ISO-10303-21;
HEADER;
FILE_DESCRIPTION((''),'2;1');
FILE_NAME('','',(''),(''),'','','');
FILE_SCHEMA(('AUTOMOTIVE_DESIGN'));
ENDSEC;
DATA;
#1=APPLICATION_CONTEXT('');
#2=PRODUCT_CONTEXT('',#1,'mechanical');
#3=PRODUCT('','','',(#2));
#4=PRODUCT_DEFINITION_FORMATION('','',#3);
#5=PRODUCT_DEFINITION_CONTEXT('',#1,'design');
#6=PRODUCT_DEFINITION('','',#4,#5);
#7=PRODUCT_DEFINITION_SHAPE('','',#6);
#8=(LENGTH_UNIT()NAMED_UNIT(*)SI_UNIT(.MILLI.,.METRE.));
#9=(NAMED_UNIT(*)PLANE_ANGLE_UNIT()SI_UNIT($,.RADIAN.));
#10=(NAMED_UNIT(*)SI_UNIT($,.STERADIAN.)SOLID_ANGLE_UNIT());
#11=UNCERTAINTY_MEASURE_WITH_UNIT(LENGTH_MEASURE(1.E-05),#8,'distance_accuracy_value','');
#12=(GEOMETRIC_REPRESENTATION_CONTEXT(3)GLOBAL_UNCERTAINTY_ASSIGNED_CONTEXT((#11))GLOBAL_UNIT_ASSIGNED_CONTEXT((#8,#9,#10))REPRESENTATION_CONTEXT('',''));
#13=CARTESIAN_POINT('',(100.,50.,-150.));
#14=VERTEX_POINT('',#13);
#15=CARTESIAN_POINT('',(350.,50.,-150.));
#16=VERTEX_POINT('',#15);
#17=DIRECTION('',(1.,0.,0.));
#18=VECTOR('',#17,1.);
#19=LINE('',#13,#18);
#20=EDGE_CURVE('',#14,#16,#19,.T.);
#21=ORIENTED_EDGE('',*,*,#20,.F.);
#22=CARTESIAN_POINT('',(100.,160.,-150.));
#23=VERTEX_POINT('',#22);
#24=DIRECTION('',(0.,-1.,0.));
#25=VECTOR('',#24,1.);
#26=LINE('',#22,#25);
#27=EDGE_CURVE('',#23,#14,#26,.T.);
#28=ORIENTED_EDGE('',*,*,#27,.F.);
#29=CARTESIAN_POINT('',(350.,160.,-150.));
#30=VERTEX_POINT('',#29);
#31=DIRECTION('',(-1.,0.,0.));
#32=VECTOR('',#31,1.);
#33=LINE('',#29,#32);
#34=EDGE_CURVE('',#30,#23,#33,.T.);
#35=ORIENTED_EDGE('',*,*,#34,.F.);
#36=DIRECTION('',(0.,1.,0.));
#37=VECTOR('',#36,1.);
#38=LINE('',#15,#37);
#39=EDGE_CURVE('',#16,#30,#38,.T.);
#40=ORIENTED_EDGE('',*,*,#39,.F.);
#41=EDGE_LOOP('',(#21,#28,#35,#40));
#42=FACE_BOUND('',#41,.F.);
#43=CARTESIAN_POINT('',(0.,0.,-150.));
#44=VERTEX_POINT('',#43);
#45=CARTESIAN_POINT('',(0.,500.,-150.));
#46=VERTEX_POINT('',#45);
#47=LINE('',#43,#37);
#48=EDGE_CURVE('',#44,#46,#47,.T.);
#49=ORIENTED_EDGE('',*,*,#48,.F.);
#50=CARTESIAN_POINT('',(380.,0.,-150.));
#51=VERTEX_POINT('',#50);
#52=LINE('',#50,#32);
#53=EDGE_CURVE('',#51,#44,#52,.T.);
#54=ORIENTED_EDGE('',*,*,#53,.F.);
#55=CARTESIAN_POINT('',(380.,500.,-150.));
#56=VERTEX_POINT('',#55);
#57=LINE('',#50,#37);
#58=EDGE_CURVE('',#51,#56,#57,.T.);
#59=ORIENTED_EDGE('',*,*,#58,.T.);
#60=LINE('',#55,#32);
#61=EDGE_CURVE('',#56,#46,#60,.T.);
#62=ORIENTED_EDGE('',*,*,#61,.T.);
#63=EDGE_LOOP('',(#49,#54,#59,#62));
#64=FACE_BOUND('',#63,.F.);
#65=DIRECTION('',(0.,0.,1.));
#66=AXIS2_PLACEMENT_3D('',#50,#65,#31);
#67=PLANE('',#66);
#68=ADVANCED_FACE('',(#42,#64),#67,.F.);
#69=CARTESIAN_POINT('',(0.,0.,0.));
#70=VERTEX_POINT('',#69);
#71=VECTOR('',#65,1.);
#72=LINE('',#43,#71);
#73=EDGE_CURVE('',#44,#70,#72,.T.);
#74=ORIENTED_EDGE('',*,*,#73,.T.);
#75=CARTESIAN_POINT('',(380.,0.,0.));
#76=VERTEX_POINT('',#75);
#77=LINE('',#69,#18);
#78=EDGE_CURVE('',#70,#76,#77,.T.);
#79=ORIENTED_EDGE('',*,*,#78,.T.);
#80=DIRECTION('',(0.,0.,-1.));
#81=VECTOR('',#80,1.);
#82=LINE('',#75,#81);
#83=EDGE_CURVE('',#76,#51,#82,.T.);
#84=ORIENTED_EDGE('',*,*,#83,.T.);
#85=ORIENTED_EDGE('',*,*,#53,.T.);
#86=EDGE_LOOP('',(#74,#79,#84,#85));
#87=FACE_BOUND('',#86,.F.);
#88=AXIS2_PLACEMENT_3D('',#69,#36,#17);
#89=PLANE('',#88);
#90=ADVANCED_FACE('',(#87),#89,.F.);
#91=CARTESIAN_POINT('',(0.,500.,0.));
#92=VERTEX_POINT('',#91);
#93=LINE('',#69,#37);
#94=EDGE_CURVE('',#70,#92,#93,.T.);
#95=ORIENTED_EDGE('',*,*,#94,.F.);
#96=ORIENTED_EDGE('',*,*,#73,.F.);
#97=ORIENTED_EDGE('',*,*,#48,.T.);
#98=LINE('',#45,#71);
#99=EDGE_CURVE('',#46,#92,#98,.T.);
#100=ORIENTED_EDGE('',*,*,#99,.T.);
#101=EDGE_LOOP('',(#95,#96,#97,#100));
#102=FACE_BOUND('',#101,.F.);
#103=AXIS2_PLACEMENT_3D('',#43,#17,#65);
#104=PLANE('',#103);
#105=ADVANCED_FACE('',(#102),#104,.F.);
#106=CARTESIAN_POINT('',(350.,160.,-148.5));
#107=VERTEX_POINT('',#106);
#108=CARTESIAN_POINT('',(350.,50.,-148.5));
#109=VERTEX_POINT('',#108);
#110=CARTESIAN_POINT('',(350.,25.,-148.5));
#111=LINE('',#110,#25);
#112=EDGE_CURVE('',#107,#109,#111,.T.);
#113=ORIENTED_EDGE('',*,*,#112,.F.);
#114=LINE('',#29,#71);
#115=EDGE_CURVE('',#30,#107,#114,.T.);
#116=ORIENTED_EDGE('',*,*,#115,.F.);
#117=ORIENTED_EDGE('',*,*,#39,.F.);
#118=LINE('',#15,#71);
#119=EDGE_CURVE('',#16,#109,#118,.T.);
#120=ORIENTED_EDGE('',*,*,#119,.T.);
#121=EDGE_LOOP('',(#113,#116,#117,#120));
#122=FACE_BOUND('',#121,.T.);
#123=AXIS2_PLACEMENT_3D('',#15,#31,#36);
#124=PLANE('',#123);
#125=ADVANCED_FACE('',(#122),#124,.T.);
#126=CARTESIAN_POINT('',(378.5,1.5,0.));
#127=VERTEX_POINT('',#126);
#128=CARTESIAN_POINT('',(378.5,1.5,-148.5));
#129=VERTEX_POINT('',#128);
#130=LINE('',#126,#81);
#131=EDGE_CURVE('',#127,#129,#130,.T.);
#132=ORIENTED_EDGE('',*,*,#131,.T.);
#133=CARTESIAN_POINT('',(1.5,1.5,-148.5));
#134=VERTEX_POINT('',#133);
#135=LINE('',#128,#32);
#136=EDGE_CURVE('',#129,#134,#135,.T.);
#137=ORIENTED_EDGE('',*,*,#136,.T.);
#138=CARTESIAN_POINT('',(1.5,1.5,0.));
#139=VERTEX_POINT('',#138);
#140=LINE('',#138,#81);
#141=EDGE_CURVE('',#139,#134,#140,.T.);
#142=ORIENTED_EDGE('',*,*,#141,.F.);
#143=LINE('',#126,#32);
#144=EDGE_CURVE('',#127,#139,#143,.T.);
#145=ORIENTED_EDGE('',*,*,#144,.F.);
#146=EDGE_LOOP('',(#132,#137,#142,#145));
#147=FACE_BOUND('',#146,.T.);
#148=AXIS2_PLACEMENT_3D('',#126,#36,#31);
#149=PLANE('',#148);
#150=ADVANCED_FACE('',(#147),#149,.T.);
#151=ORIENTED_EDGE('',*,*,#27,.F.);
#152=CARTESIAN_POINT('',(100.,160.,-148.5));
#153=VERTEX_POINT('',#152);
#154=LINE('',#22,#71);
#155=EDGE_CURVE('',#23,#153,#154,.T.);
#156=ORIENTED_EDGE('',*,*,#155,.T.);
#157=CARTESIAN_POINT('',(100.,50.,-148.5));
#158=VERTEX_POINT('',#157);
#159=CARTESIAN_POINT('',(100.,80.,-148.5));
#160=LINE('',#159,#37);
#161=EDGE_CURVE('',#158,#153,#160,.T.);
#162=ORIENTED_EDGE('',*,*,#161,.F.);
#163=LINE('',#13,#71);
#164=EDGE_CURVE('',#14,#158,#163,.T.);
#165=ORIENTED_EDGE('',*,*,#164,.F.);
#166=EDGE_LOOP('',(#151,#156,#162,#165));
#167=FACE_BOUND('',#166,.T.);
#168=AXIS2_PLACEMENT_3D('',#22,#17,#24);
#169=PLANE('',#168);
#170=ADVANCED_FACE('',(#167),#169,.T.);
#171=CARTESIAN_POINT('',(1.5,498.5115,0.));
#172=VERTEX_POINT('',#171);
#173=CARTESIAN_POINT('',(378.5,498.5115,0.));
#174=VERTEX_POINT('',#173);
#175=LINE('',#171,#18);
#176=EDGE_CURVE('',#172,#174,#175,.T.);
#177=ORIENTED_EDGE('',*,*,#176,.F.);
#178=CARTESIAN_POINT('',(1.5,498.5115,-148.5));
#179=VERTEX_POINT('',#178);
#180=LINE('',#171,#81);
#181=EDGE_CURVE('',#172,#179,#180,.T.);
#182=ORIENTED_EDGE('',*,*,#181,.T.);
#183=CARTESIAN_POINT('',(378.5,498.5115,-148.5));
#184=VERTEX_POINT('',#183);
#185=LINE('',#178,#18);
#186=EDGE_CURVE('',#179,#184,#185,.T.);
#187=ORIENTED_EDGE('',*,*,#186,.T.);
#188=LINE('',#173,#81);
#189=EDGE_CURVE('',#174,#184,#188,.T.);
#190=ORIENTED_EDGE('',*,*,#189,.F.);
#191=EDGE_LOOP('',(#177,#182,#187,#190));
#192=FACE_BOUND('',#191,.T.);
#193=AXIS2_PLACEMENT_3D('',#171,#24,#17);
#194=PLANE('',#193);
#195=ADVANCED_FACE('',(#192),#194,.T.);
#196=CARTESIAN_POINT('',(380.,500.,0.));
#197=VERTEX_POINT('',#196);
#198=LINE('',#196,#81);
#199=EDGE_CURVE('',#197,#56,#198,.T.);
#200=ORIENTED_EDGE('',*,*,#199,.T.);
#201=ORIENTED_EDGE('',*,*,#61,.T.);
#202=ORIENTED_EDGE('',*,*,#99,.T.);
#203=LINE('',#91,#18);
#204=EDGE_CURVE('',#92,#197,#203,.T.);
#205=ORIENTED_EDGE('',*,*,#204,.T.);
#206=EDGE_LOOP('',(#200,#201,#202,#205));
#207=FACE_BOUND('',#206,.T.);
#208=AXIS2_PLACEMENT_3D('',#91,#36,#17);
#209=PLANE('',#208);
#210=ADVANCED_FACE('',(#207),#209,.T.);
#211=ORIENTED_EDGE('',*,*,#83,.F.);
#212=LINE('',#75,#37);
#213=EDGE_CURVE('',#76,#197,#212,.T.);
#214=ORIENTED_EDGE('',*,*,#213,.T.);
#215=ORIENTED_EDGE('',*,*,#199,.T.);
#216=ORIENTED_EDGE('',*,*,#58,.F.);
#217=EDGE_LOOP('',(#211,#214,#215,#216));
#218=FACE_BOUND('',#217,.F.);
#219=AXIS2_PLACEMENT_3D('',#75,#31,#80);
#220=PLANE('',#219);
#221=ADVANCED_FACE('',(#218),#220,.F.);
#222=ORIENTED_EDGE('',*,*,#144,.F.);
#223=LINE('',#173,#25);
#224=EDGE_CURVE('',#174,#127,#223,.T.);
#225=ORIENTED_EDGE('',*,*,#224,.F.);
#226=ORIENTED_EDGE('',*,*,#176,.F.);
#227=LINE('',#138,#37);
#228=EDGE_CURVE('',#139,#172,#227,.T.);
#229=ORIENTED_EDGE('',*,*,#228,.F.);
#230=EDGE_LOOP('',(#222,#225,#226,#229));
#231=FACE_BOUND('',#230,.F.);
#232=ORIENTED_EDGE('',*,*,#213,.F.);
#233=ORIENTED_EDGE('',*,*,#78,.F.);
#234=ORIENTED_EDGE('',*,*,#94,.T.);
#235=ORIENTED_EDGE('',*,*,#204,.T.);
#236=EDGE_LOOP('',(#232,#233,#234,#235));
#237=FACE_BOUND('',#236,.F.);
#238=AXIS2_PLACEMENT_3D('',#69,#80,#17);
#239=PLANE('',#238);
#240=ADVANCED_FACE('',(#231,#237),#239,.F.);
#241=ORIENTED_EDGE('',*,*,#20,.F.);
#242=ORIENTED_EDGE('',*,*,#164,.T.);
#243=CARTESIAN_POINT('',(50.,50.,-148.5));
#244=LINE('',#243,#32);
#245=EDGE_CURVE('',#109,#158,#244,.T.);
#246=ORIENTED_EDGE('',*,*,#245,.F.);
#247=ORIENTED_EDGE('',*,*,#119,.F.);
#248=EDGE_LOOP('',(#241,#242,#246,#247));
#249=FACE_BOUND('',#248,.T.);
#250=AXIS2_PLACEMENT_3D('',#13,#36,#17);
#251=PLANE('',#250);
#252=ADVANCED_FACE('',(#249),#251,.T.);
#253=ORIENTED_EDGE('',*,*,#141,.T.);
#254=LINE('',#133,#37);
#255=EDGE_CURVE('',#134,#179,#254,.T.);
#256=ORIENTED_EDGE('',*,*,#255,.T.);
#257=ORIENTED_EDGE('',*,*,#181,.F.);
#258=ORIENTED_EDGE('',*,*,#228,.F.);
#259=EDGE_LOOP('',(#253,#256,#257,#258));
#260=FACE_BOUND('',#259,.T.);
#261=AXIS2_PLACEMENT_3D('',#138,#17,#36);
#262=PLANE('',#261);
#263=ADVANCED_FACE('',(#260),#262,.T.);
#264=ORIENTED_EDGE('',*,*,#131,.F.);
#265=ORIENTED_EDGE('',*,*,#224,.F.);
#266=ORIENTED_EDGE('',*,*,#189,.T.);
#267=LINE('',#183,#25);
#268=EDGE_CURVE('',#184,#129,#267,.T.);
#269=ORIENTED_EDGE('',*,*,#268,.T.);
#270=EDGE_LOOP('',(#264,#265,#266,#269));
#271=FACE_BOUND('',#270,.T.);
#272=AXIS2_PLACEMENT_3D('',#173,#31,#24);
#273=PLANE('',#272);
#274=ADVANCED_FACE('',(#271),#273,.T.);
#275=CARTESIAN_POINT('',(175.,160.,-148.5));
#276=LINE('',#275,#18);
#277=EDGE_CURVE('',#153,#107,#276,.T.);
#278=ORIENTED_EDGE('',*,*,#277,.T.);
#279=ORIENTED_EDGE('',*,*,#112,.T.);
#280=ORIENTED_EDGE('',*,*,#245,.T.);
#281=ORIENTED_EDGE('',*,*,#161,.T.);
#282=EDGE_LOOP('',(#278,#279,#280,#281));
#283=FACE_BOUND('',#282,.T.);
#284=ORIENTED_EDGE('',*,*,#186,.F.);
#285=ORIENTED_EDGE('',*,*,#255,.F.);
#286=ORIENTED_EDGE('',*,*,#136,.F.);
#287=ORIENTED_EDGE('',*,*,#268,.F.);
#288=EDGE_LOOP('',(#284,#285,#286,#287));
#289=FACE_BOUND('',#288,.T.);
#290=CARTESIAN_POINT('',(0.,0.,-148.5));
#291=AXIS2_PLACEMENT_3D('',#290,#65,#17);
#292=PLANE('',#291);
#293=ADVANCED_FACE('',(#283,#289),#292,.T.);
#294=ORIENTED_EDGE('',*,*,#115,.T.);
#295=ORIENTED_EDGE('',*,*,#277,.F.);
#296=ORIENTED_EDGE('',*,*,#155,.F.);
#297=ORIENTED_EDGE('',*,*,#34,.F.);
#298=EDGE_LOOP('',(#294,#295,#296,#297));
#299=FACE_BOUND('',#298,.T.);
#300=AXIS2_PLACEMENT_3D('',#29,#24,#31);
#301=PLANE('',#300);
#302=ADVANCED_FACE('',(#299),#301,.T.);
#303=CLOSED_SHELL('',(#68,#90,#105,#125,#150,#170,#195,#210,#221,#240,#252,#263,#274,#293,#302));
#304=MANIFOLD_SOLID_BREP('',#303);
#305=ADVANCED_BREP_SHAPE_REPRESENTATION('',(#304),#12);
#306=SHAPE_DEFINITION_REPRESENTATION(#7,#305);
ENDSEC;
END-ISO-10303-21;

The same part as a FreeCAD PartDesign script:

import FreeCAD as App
import Part
import Sketcher
from FreeCAD import Vector
Q = App.Units.Quantity


def add_polygon(sketch, points):
    """Adds a closed chain of lines whose ends are joined by coincident constraints."""
    first, n = sketch.GeometryCount, len(points)
    for a, b in zip(points, points[1:] + points[:1]):
        sketch.addGeometry(Part.LineSegment(App.Vector(*a, 0), App.Vector(*b, 0)), False)
    for i in range(n):
        sketch.addConstraint(Sketcher.Constraint("Coincident", first + i, 2, first + (i + 1) % n, 1))

doc = App.newDocument("Part")
params = doc.addObject("Spreadsheet::Sheet", "Params")
for row, (alias, value) in enumerate([
    ("sketch1_width", "380 mm"),
    ("sketch1_height", "150 mm"),
    ("pad1_length", "500 mm"),
    ("sketch2_width", "377 mm"),
    ("pocket1_length", "148.5 mm"),
    ("sketch3_width", "250 mm"),
    ("sketch3_height", "110 mm"),
    ("pocket2_length", "30 mm"),
], start=1):
    params.set(f"A{row}", alias)
    params.set(f"B{row}", "=" + value)
    params.setAlias(f"B{row}", alias)

body = doc.addObject("PartDesign::Body", "Body")

# Sketch on XZ plane
sketch1 = doc.addObject("Sketcher::SketchObject", "Sketch")
body.addObject(sketch1)
sketch1.AttachmentSupport = (doc.XZ_Plane, [""])
sketch1.MapMode = "FlatFace"
add_polygon(sketch1, [(0, -150), (0, 0), (380, 0), (380, -150)])  # lines 0-3
sketch1.addConstraint([
    Sketcher.Constraint("Vertical", 0),
    Sketcher.Constraint("Horizontal", 1),
    Sketcher.Constraint("Vertical", 2),
    Sketcher.Constraint("Horizontal", 3),
    Sketcher.Constraint("Coincident", 0, 2, -1, 1),
    Sketcher.Constraint("DistanceX", 1, 1, 1, 2, Q("380 mm")),
    Sketcher.Constraint("DistanceY", 0, 1, 0, 2, Q("150 mm")),
])
sketch1.setExpression("Constraints[9]", "Params.sketch1_width")
sketch1.setExpression("Constraints[10]", "Params.sketch1_height")
pad1 = doc.addObject("PartDesign::Pad", "Pad")
body.addObject(pad1)
pad1.Profile = sketch1
pad1.setExpression("Length", "Params.pad1_length")
pad1.Reversed = True

# Sketch on XY plane
sketch2 = doc.addObject("Sketcher::SketchObject", "Sketch001")
body.addObject(sketch2)
sketch2.AttachmentSupport = (doc.XY_Plane, [""])
sketch2.MapMode = "FlatFace"
add_polygon(sketch2, [(378, 499), (2, 499), (2, 2), (378, 2)])  # lines 0-3
sketch2.addConstraint([
    Sketcher.Constraint("Horizontal", 0),
    Sketcher.Constraint("Vertical", 1),
    Sketcher.Constraint("Horizontal", 2),
    Sketcher.Constraint("Vertical", 3),
    Sketcher.Constraint("DistanceX", -1, 1, 0, 2, Q("1.5 mm")),
    Sketcher.Constraint("DistanceY", -1, 1, 1, 2, Q("1.5 mm")),
    Sketcher.Constraint("DistanceX", 0, 2, 0, 1, Q("377 mm")),
    Sketcher.Constraint("DistanceY", 1, 2, 1, 1, Q("497.0115 mm")),
])
sketch2.setExpression("Constraints[10]", "Params.sketch2_width")
pocket1 = doc.addObject("PartDesign::Pocket", "Pocket")
body.addObject(pocket1)
pocket1.Profile = sketch2
pocket1.setExpression("Length", "Params.pocket1_length")

# Sketch on XY plane
sketch3 = doc.addObject("Sketcher::SketchObject", "Sketch002")
body.addObject(sketch3)
sketch3.AttachmentSupport = (doc.XY_Plane, [""])
sketch3.MapMode = "FlatFace"
sketch3.AttachmentOffset = App.Placement(Vector(0, 0, -150), App.Rotation())
add_polygon(sketch3, [(350, 50), (100, 50), (100, 160), (350, 160)])  # lines 0-3
sketch3.addConstraint([
    Sketcher.Constraint("Horizontal", 0),
    Sketcher.Constraint("Vertical", 1),
    Sketcher.Constraint("Horizontal", 2),
    Sketcher.Constraint("Vertical", 3),
    Sketcher.Constraint("DistanceX", 0, 2, 0, 1, Q("250 mm")),
    Sketcher.Constraint("DistanceY", 1, 1, 1, 2, Q("110 mm")),
    Sketcher.Constraint("DistanceX", -1, 1, 0, 2, Q("100 mm")),
    Sketcher.Constraint("DistanceY", -1, 1, 0, 2, Q("50 mm")),
])
sketch3.setExpression("Constraints[8]", "Params.sketch3_width")
sketch3.setExpression("Constraints[9]", "Params.sketch3_height")
pocket2 = doc.addObject("PartDesign::Pocket", "Pocket001")
body.addObject(pocket2)
pocket2.Profile = sketch3
pocket2.setExpression("Length", "Params.pocket2_length")
pocket2.Reversed = True

doc.recompute()
